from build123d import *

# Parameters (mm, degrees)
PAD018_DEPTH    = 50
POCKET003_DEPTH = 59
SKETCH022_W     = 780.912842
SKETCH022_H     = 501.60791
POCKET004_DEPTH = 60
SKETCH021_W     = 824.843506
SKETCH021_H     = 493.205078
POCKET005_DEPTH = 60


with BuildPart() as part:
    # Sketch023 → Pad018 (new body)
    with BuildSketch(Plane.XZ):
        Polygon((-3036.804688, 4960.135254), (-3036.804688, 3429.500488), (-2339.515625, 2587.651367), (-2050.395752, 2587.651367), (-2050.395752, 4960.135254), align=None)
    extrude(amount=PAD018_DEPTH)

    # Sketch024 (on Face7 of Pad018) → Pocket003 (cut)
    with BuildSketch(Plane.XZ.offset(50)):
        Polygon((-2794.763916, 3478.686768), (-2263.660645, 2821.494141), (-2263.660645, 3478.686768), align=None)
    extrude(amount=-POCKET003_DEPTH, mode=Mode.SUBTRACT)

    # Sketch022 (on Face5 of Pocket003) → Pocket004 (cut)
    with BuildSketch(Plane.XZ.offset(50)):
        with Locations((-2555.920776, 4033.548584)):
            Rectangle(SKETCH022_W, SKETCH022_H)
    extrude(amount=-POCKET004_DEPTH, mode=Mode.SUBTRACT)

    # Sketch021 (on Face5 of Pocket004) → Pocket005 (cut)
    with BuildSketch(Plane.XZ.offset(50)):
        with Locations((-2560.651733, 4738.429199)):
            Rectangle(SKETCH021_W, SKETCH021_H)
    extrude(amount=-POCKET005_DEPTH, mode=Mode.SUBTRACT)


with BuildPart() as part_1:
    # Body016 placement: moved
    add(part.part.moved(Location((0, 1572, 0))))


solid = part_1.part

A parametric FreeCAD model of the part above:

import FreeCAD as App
import Part
import Sketcher
from FreeCAD import Vector

doc = App.newDocument("Part")
body = doc.addObject("PartDesign::Body", "Body")

# Sketch on XZ plane
sketch1 = doc.addObject("Sketcher::SketchObject", "Sketch")
body.addObject(sketch1)
sketch1.AttachmentSupport = (doc.XZ_Plane, [""])
sketch1.MapMode = "FlatFace"
sketch1.addGeometry(Part.LineSegment(Vector(-3037, 4960, 0), Vector(-3037, 3430, 0)), False)
sketch1.addGeometry(Part.LineSegment(Vector(-3037, 3430, 0), Vector(-2340, 2588, 0)), False)
sketch1.addGeometry(Part.LineSegment(Vector(-2340, 2588, 0), Vector(-2050, 2588, 0)), False)
sketch1.addGeometry(Part.LineSegment(Vector(-2050, 2588, 0), Vector(-2050, 4960, 0)), False)
sketch1.addGeometry(Part.LineSegment(Vector(-2050, 4960, 0), Vector(-3037, 4960, 0)), False)
sketch1.addConstraint(Sketcher.Constraint("Coincident", 0, 2, 1, 1))
sketch1.addConstraint(Sketcher.Constraint("Coincident", 1, 2, 2, 1))
sketch1.addConstraint(Sketcher.Constraint("Coincident", 2, 2, 3, 1))
sketch1.addConstraint(Sketcher.Constraint("Coincident", 3, 2, 4, 1))
sketch1.addConstraint(Sketcher.Constraint("Coincident", 4, 2, 0, 1))
sketch1.addConstraint(Sketcher.Constraint("Vertical", 0))
sketch1.addConstraint(Sketcher.Constraint("Horizontal", 2))
sketch1.addConstraint(Sketcher.Constraint("Vertical", 3))
sketch1.addConstraint(Sketcher.Constraint("Horizontal", 4))
sketch1.addConstraint(Sketcher.Constraint("Distance", 1, 1093.124869))
sketch1.addConstraint(Sketcher.Constraint("DistanceX", 2, 1, 2, 2, 289.119873))
sketch1.addConstraint(Sketcher.Constraint("DistanceX", 4, 2, 4, 1, 986.408936))
sketch1.addConstraint(Sketcher.Constraint("DistanceY", 0, 2, 0, 1, 1530.634766))
sketch1.addConstraint(Sketcher.Constraint("DistanceX", 0, 2, -1, 1, 3036.804688))
sketch1.addConstraint(Sketcher.Constraint("DistanceY", -1, 1, 0, 2, 3429.500488))
pad1 = doc.addObject("PartDesign::Pad", "Pad")
body.addObject(pad1)
pad1.Profile = sketch1
pad1.Length = 50

# Sketch on XZ plane
sketch2 = doc.addObject("Sketcher::SketchObject", "Sketch001")
body.addObject(sketch2)
sketch2.AttachmentSupport = (doc.XZ_Plane, [""])
sketch2.MapMode = "FlatFace"
sketch2.AttachmentOffset = App.Placement(Vector(0, 0, 50), App.Rotation())
sketch2.addGeometry(Part.LineSegment(Vector(-2795, 3479, 0), Vector(-2264, 2821, 0)), False)
sketch2.addGeometry(Part.LineSegment(Vector(-2264, 2821, 0), Vector(-2264, 3479, 0)), False)
sketch2.addGeometry(Part.LineSegment(Vector(-2264, 3479, 0), Vector(-2795, 3479, 0)), False)
sketch2.addConstraint(Sketcher.Constraint("Coincident", 0, 2, 1, 1))
sketch2.addConstraint(Sketcher.Constraint("Coincident", 1, 2, 2, 1))
sketch2.addConstraint(Sketcher.Constraint("Coincident", 2, 2, 0, 1))
sketch2.addConstraint(Sketcher.Constraint("Vertical", 1))
sketch2.addConstraint(Sketcher.Constraint("Horizontal", 2))
sketch2.addConstraint(Sketcher.Constraint("DistanceX", 2, 2, 2, 1, 531.103271))
sketch2.addConstraint(Sketcher.Constraint("Distance", 0, 844.969132))
sketch2.addConstraint(Sketcher.Constraint("DistanceY", -1, 1, 0, 2, 2821.494141))
sketch2.addConstraint(Sketcher.Constraint("DistanceX", 0, 2, -1, 1, 2263.660645))
pocket1 = doc.addObject("PartDesign::Pocket", "Pocket")
body.addObject(pocket1)
pocket1.Profile = sketch2
pocket1.Length = 59

# Sketch on XZ plane
sketch3 = doc.addObject("Sketcher::SketchObject", "Sketch002")
body.addObject(sketch3)
sketch3.AttachmentSupport = (doc.XZ_Plane, [""])
sketch3.MapMode = "FlatFace"
sketch3.AttachmentOffset = App.Placement(Vector(0, 0, 50), App.Rotation())
sketch3.addGeometry(Part.LineSegment(Vector(-2946, 4284, 0), Vector(-2946, 3783, 0)), False)
sketch3.addGeometry(Part.LineSegment(Vector(-2946, 3783, 0), Vector(-2165, 3783, 0)), False)
sketch3.addGeometry(Part.LineSegment(Vector(-2165, 3783, 0), Vector(-2165, 4284, 0)), False)
sketch3.addGeometry(Part.LineSegment(Vector(-2165, 4284, 0), Vector(-2946, 4284, 0)), False)
sketch3.addConstraint(Sketcher.Constraint("Coincident", 0, 2, 1, 1))
sketch3.addConstraint(Sketcher.Constraint("Coincident", 1, 2, 2, 1))
sketch3.addConstraint(Sketcher.Constraint("Coincident", 2, 2, 3, 1))
sketch3.addConstraint(Sketcher.Constraint("Coincident", 3, 2, 0, 1))
sketch3.addConstraint(Sketcher.Constraint("Vertical", 0))
sketch3.addConstraint(Sketcher.Constraint("Horizontal", 1))
sketch3.addConstraint(Sketcher.Constraint("Vertical", 2))
sketch3.addConstraint(Sketcher.Constraint("Horizontal", 3))
sketch3.addConstraint(Sketcher.Constraint("DistanceX", 1, 1, 1, 2, 780.912842))
sketch3.addConstraint(Sketcher.Constraint("DistanceY", 0, 2, 0, 1, 501.60791))
sketch3.addConstraint(Sketcher.Constraint("DistanceY", -1, 1, 0, 2, 3782.744629))
sketch3.addConstraint(Sketcher.Constraint("DistanceX", 0, 2, -1, 1, 2946.377197))
pocket2 = doc.addObject("PartDesign::Pocket", "Pocket001")
body.addObject(pocket2)
pocket2.Profile = sketch3
pocket2.Length = 60

# Sketch on XZ plane
sketch4 = doc.addObject("Sketcher::SketchObject", "Sketch003")
body.addObject(sketch4)
sketch4.AttachmentSupport = (doc.XZ_Plane, [""])
sketch4.MapMode = "FlatFace"
sketch4.AttachmentOffset = App.Placement(Vector(0, 0, 50), App.Rotation())
sketch4.addGeometry(Part.LineSegment(Vector(-2973, 4985, 0), Vector(-2973, 4492, 0)), False)
sketch4.addGeometry(Part.LineSegment(Vector(-2973, 4492, 0), Vector(-2148, 4492, 0)), False)
sketch4.addGeometry(Part.LineSegment(Vector(-2148, 4492, 0), Vector(-2148, 4985, 0)), False)
sketch4.addGeometry(Part.LineSegment(Vector(-2148, 4985, 0), Vector(-2973, 4985, 0)), False)
sketch4.addConstraint(Sketcher.Constraint("Coincident", 0, 2, 1, 1))
sketch4.addConstraint(Sketcher.Constraint("Coincident", 1, 2, 2, 1))
sketch4.addConstraint(Sketcher.Constraint("Coincident", 2, 2, 3, 1))
sketch4.addConstraint(Sketcher.Constraint("Coincident", 3, 2, 0, 1))
sketch4.addConstraint(Sketcher.Constraint("Vertical", 0))
sketch4.addConstraint(Sketcher.Constraint("Horizontal", 1))
sketch4.addConstraint(Sketcher.Constraint("Vertical", 2))
sketch4.addConstraint(Sketcher.Constraint("Horizontal", 3))
sketch4.addConstraint(Sketcher.Constraint("DistanceX", 1, 1, 1, 2, 824.843506))
sketch4.addConstraint(Sketcher.Constraint("DistanceY", 0, 2, 0, 1, 493.205078))
sketch4.addConstraint(Sketcher.Constraint("DistanceY", -1, 1, 0, 2, 4491.82666))
sketch4.addConstraint(Sketcher.Constraint("DistanceX", 1, 2, -1, 1, 2148.22998))
pocket3 = doc.addObject("PartDesign::Pocket", "Pocket002")
body.addObject(pocket3)
pocket3.Profile = sketch4
pocket3.Length = 60
body2 = doc.addObject("PartDesign::Body", "Body001")
doc.recompute()

body.Placement = App.Placement(Vector(0, 1572, 0), App.Rotation(Vector(0, 0, 1), 0))
boolean = doc.addObject("PartDesign::Boolean", "Boolean")
body2.addObject(boolean)
boolean.Type = "Fuse"
boolean.addObjects([body])

doc.recompute()
